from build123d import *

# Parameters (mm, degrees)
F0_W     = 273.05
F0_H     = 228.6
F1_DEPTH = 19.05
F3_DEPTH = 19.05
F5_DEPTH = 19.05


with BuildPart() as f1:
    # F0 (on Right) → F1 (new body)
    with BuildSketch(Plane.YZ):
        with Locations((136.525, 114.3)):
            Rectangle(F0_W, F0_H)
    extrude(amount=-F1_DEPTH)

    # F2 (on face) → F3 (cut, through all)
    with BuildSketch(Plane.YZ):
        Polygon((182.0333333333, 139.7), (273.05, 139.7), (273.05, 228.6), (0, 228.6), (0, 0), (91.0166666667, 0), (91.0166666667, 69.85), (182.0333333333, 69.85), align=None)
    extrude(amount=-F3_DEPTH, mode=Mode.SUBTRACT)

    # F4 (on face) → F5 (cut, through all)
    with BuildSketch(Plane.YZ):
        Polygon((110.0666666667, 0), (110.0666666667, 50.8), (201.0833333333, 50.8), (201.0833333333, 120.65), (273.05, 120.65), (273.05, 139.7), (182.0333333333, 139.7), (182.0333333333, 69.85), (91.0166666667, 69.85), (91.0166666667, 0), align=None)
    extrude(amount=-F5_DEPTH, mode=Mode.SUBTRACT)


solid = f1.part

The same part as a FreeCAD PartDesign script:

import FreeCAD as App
import Part
import Sketcher
Q = App.Units.Quantity

doc = App.newDocument("Part")
params = doc.addObject("Spreadsheet::Sheet", "Params")
for row, (alias, value) in enumerate([
    ("sketch1_height", "9 in"),
    ("sketch1_width", "10.75 in"),
    ("pad1_length", "0.75 in"),
    ("sketch2_height", "9 in"),
    ("sketch2_height2", "3.5 in"),
    ("sketch2_width", "10.75 in"),
    ("sketch3_height", "2 in"),
    ("sketch3_width", "0.75 in"),
], start=1):
    params.set(f"A{row}", alias)
    params.set(f"B{row}", "=" + value)
    params.setAlias(f"B{row}", alias)

body = doc.addObject("PartDesign::Body", "Body")

# Sketch on YZ plane
sketch1 = body.newObject("Sketcher::SketchObject", "Sketch")
sketch1.AttachmentSupport = (doc.getObject("YZ_Plane"), [""])
sketch1.MapMode = "FlatFace"
sketch1.addGeometry(Part.LineSegment(App.Vector(0, 229, 0), App.Vector(0, 0, 0)), False)
sketch1.addGeometry(Part.LineSegment(App.Vector(0, 0, 0), App.Vector(273, 0, 0)), False)
sketch1.addGeometry(Part.LineSegment(App.Vector(273, 0, 0), App.Vector(273, 229, 0)), False)
sketch1.addGeometry(Part.LineSegment(App.Vector(273, 229, 0), App.Vector(0, 229, 0)), False)
sketch1.addConstraint(Sketcher.Constraint("Coincident", 0, 2, 1, 1))
sketch1.addConstraint(Sketcher.Constraint("Coincident", 1, 2, 2, 1))
sketch1.addConstraint(Sketcher.Constraint("Coincident", 2, 2, 3, 1))
sketch1.addConstraint(Sketcher.Constraint("Coincident", 3, 2, 0, 1))
sketch1.addConstraint(Sketcher.Constraint("Vertical", 0))
sketch1.addConstraint(Sketcher.Constraint("Horizontal", 1))
sketch1.addConstraint(Sketcher.Constraint("Vertical", 2))
sketch1.addConstraint(Sketcher.Constraint("Horizontal", 3))
sketch1.addConstraint(Sketcher.Constraint("Coincident", 0, 2, -1, 1))
sketch1.addConstraint(Sketcher.Constraint("DistanceY", 0, 2, 0, 1, Q("9 in")))
sketch1.addConstraint(Sketcher.Constraint("DistanceX", 1, 1, 1, 2, Q("10.75 in")))
sketch1.setExpression("Constraints[9]", "Params.sketch1_height")
sketch1.setExpression("Constraints[10]", "Params.sketch1_width")
pad1 = body.newObject("PartDesign::Pad", "Pad")
pad1.Profile = sketch1
pad1.setExpression("Length", "Params.pad1_length")
pad1.Reversed = True

# Sketch on YZ plane
sketch2 = body.newObject("Sketcher::SketchObject", "Sketch001")
sketch2.AttachmentSupport = (doc.getObject("YZ_Plane"), [""])
sketch2.MapMode = "FlatFace"
sketch2.addGeometry(Part.LineSegment(App.Vector(182, 140, 0), App.Vector(273, 140, 0)), False)
sketch2.addGeometry(Part.LineSegment(App.Vector(273, 140, 0), App.Vector(273, 229, 0)), False)
sketch2.addGeometry(Part.LineSegment(App.Vector(273, 229, 0), App.Vector(0, 229, 0)), False)
sketch2.addGeometry(Part.LineSegment(App.Vector(0, 229, 0), App.Vector(0, 0, 0)), False)
sketch2.addGeometry(Part.LineSegment(App.Vector(0, 0, 0), App.Vector(91, 0, 0)), False)
sketch2.addGeometry(Part.LineSegment(App.Vector(91, 0, 0), App.Vector(91, 70, 0)), False)
sketch2.addGeometry(Part.LineSegment(App.Vector(91, 70, 0), App.Vector(182, 70, 0)), False)
sketch2.addGeometry(Part.LineSegment(App.Vector(182, 70, 0), App.Vector(182, 140, 0)), False)
sketch2.addConstraint(Sketcher.Constraint("Coincident", 0, 2, 1, 1))
sketch2.addConstraint(Sketcher.Constraint("Coincident", 1, 2, 2, 1))
sketch2.addConstraint(Sketcher.Constraint("Coincident", 2, 2, 3, 1))
sketch2.addConstraint(Sketcher.Constraint("Coincident", 3, 2, 4, 1))
sketch2.addConstraint(Sketcher.Constraint("Coincident", 4, 2, 5, 1))
sketch2.addConstraint(Sketcher.Constraint("Coincident", 5, 2, 6, 1))
sketch2.addConstraint(Sketcher.Constraint("Coincident", 6, 2, 7, 1))
sketch2.addConstraint(Sketcher.Constraint("Coincident", 7, 2, 0, 1))
sketch2.addConstraint(Sketcher.Constraint("Horizontal", 0))
sketch2.addConstraint(Sketcher.Constraint("Vertical", 1))
sketch2.addConstraint(Sketcher.Constraint("Horizontal", 2))
sketch2.addConstraint(Sketcher.Constraint("Vertical", 3))
sketch2.addConstraint(Sketcher.Constraint("Horizontal", 4))
sketch2.addConstraint(Sketcher.Constraint("Vertical", 5))
sketch2.addConstraint(Sketcher.Constraint("Horizontal", 6))
sketch2.addConstraint(Sketcher.Constraint("Vertical", 7))
sketch2.addConstraint(Sketcher.Constraint("Coincident", 3, 2, -1, 1))
sketch2.addConstraint(Sketcher.Constraint("Equal", 0, 4))
sketch2.addConstraint(Sketcher.Constraint("Equal", 4, 6))
sketch2.addConstraint(Sketcher.Constraint("Equal", 5, 7))
sketch2.addConstraint(Sketcher.Constraint("DistanceY", 3, 2, 3, 1, Q("9 in")))
sketch2.addConstraint(Sketcher.Constraint("DistanceY", 1, 1, 1, 2, Q("3.5 in")))
sketch2.addConstraint(Sketcher.Constraint("DistanceX", 2, 2, 2, 1, Q("10.75 in")))
sketch2.setExpression("Constraints[20]", "Params.sketch2_height")
sketch2.setExpression("Constraints[21]", "Params.sketch2_height2")
sketch2.setExpression("Constraints[22]", "Params.sketch2_width")
pocket1 = body.newObject("PartDesign::Pocket", "Pocket")
pocket1.Profile = sketch2
pocket1.Type = "ThroughAll"

# Sketch on YZ plane
sketch3 = body.newObject("Sketcher::SketchObject", "Sketch002")
sketch3.AttachmentSupport = (doc.getObject("YZ_Plane"), [""])
sketch3.MapMode = "FlatFace"
sketch3.addGeometry(Part.LineSegment(App.Vector(110, 0, 0), App.Vector(110, 51, 0)), False)
sketch3.addGeometry(Part.LineSegment(App.Vector(110, 51, 0), App.Vector(201, 51, 0)), False)
sketch3.addGeometry(Part.LineSegment(App.Vector(201, 51, 0), App.Vector(201, 121, 0)), False)
sketch3.addGeometry(Part.LineSegment(App.Vector(201, 121, 0), App.Vector(273, 121, 0)), False)
sketch3.addGeometry(Part.LineSegment(App.Vector(273, 121, 0), App.Vector(273, 140, 0)), False)
sketch3.addGeometry(Part.LineSegment(App.Vector(273, 140, 0), App.Vector(182, 140, 0)), False)
sketch3.addGeometry(Part.LineSegment(App.Vector(182, 140, 0), App.Vector(182, 70, 0)), False)
sketch3.addGeometry(Part.LineSegment(App.Vector(182, 70, 0), App.Vector(91, 70, 0)), False)
sketch3.addGeometry(Part.LineSegment(App.Vector(91, 70, 0), App.Vector(91, 0, 0)), False)
sketch3.addGeometry(Part.LineSegment(App.Vector(91, 0, 0), App.Vector(110, 0, 0)), False)
sketch3.addConstraint(Sketcher.Constraint("Coincident", 0, 2, 1, 1))
sketch3.addConstraint(Sketcher.Constraint("Coincident", 1, 2, 2, 1))
sketch3.addConstraint(Sketcher.Constraint("Coincident", 2, 2, 3, 1))
sketch3.addConstraint(Sketcher.Constraint("Coincident", 3, 2, 4, 1))
sketch3.addConstraint(Sketcher.Constraint("Coincident", 4, 2, 5, 1))
sketch3.addConstraint(Sketcher.Constraint("Coincident", 5, 2, 6, 1))
sketch3.addConstraint(Sketcher.Constraint("Coincident", 6, 2, 7, 1))
sketch3.addConstraint(Sketcher.Constraint("Coincident", 7, 2, 8, 1))
sketch3.addConstraint(Sketcher.Constraint("Coincident", 8, 2, 9, 1))
sketch3.addConstraint(Sketcher.Constraint("Coincident", 9, 2, 0, 1))
sketch3.addConstraint(Sketcher.Constraint("Vertical", 0))
sketch3.addConstraint(Sketcher.Constraint("Horizontal", 1))
sketch3.addConstraint(Sketcher.Constraint("Vertical", 2))
sketch3.addConstraint(Sketcher.Constraint("Horizontal", 3))
sketch3.addConstraint(Sketcher.Constraint("Vertical", 4))
sketch3.addConstraint(Sketcher.Constraint("Horizontal", 5))
sketch3.addConstraint(Sketcher.Constraint("Vertical", 6))
sketch3.addConstraint(Sketcher.Constraint("Horizontal", 7))
sketch3.addConstraint(Sketcher.Constraint("Vertical", 8))
sketch3.addConstraint(Sketcher.Constraint("Horizontal", 9))
sketch3.addConstraint(Sketcher.Constraint("PointOnObject", 8, 2, -1))
sketch3.addConstraint(Sketcher.Constraint("Equal", 1, 5))
sketch3.addConstraint(Sketcher.Constraint("Equal", 5, 7))
sketch3.addConstraint(Sketcher.Constraint("Equal", 9, 4))
sketch3.addConstraint(Sketcher.Constraint("Equal", 2, 6))
sketch3.addConstraint(Sketcher.Constraint("Equal", 6, 8))
sketch3.addConstraint(Sketcher.Constraint("DistanceY", 0, 1, 0, 2, Q("2 in")))
sketch3.addConstraint(Sketcher.Constraint("DistanceX", 9, 1, 9, 2, Q("0.75 in")))
sketch3.addConstraint(Sketcher.Constraint("DistanceX", -1, 1, 3, 2, Q("10.75 in")))
sketch3.addConstraint(Sketcher.Constraint("DistanceX", 1, 1, 1, 2, 91.016667))
sketch3.setExpression("Constraints[26]", "Params.sketch3_height")
sketch3.setExpression("Constraints[27]", "Params.sketch3_width")
pocket2 = body.newObject("PartDesign::Pocket", "Pocket001")
pocket2.Profile = sketch3
pocket2.Type = "ThroughAll"

doc.recompute()
